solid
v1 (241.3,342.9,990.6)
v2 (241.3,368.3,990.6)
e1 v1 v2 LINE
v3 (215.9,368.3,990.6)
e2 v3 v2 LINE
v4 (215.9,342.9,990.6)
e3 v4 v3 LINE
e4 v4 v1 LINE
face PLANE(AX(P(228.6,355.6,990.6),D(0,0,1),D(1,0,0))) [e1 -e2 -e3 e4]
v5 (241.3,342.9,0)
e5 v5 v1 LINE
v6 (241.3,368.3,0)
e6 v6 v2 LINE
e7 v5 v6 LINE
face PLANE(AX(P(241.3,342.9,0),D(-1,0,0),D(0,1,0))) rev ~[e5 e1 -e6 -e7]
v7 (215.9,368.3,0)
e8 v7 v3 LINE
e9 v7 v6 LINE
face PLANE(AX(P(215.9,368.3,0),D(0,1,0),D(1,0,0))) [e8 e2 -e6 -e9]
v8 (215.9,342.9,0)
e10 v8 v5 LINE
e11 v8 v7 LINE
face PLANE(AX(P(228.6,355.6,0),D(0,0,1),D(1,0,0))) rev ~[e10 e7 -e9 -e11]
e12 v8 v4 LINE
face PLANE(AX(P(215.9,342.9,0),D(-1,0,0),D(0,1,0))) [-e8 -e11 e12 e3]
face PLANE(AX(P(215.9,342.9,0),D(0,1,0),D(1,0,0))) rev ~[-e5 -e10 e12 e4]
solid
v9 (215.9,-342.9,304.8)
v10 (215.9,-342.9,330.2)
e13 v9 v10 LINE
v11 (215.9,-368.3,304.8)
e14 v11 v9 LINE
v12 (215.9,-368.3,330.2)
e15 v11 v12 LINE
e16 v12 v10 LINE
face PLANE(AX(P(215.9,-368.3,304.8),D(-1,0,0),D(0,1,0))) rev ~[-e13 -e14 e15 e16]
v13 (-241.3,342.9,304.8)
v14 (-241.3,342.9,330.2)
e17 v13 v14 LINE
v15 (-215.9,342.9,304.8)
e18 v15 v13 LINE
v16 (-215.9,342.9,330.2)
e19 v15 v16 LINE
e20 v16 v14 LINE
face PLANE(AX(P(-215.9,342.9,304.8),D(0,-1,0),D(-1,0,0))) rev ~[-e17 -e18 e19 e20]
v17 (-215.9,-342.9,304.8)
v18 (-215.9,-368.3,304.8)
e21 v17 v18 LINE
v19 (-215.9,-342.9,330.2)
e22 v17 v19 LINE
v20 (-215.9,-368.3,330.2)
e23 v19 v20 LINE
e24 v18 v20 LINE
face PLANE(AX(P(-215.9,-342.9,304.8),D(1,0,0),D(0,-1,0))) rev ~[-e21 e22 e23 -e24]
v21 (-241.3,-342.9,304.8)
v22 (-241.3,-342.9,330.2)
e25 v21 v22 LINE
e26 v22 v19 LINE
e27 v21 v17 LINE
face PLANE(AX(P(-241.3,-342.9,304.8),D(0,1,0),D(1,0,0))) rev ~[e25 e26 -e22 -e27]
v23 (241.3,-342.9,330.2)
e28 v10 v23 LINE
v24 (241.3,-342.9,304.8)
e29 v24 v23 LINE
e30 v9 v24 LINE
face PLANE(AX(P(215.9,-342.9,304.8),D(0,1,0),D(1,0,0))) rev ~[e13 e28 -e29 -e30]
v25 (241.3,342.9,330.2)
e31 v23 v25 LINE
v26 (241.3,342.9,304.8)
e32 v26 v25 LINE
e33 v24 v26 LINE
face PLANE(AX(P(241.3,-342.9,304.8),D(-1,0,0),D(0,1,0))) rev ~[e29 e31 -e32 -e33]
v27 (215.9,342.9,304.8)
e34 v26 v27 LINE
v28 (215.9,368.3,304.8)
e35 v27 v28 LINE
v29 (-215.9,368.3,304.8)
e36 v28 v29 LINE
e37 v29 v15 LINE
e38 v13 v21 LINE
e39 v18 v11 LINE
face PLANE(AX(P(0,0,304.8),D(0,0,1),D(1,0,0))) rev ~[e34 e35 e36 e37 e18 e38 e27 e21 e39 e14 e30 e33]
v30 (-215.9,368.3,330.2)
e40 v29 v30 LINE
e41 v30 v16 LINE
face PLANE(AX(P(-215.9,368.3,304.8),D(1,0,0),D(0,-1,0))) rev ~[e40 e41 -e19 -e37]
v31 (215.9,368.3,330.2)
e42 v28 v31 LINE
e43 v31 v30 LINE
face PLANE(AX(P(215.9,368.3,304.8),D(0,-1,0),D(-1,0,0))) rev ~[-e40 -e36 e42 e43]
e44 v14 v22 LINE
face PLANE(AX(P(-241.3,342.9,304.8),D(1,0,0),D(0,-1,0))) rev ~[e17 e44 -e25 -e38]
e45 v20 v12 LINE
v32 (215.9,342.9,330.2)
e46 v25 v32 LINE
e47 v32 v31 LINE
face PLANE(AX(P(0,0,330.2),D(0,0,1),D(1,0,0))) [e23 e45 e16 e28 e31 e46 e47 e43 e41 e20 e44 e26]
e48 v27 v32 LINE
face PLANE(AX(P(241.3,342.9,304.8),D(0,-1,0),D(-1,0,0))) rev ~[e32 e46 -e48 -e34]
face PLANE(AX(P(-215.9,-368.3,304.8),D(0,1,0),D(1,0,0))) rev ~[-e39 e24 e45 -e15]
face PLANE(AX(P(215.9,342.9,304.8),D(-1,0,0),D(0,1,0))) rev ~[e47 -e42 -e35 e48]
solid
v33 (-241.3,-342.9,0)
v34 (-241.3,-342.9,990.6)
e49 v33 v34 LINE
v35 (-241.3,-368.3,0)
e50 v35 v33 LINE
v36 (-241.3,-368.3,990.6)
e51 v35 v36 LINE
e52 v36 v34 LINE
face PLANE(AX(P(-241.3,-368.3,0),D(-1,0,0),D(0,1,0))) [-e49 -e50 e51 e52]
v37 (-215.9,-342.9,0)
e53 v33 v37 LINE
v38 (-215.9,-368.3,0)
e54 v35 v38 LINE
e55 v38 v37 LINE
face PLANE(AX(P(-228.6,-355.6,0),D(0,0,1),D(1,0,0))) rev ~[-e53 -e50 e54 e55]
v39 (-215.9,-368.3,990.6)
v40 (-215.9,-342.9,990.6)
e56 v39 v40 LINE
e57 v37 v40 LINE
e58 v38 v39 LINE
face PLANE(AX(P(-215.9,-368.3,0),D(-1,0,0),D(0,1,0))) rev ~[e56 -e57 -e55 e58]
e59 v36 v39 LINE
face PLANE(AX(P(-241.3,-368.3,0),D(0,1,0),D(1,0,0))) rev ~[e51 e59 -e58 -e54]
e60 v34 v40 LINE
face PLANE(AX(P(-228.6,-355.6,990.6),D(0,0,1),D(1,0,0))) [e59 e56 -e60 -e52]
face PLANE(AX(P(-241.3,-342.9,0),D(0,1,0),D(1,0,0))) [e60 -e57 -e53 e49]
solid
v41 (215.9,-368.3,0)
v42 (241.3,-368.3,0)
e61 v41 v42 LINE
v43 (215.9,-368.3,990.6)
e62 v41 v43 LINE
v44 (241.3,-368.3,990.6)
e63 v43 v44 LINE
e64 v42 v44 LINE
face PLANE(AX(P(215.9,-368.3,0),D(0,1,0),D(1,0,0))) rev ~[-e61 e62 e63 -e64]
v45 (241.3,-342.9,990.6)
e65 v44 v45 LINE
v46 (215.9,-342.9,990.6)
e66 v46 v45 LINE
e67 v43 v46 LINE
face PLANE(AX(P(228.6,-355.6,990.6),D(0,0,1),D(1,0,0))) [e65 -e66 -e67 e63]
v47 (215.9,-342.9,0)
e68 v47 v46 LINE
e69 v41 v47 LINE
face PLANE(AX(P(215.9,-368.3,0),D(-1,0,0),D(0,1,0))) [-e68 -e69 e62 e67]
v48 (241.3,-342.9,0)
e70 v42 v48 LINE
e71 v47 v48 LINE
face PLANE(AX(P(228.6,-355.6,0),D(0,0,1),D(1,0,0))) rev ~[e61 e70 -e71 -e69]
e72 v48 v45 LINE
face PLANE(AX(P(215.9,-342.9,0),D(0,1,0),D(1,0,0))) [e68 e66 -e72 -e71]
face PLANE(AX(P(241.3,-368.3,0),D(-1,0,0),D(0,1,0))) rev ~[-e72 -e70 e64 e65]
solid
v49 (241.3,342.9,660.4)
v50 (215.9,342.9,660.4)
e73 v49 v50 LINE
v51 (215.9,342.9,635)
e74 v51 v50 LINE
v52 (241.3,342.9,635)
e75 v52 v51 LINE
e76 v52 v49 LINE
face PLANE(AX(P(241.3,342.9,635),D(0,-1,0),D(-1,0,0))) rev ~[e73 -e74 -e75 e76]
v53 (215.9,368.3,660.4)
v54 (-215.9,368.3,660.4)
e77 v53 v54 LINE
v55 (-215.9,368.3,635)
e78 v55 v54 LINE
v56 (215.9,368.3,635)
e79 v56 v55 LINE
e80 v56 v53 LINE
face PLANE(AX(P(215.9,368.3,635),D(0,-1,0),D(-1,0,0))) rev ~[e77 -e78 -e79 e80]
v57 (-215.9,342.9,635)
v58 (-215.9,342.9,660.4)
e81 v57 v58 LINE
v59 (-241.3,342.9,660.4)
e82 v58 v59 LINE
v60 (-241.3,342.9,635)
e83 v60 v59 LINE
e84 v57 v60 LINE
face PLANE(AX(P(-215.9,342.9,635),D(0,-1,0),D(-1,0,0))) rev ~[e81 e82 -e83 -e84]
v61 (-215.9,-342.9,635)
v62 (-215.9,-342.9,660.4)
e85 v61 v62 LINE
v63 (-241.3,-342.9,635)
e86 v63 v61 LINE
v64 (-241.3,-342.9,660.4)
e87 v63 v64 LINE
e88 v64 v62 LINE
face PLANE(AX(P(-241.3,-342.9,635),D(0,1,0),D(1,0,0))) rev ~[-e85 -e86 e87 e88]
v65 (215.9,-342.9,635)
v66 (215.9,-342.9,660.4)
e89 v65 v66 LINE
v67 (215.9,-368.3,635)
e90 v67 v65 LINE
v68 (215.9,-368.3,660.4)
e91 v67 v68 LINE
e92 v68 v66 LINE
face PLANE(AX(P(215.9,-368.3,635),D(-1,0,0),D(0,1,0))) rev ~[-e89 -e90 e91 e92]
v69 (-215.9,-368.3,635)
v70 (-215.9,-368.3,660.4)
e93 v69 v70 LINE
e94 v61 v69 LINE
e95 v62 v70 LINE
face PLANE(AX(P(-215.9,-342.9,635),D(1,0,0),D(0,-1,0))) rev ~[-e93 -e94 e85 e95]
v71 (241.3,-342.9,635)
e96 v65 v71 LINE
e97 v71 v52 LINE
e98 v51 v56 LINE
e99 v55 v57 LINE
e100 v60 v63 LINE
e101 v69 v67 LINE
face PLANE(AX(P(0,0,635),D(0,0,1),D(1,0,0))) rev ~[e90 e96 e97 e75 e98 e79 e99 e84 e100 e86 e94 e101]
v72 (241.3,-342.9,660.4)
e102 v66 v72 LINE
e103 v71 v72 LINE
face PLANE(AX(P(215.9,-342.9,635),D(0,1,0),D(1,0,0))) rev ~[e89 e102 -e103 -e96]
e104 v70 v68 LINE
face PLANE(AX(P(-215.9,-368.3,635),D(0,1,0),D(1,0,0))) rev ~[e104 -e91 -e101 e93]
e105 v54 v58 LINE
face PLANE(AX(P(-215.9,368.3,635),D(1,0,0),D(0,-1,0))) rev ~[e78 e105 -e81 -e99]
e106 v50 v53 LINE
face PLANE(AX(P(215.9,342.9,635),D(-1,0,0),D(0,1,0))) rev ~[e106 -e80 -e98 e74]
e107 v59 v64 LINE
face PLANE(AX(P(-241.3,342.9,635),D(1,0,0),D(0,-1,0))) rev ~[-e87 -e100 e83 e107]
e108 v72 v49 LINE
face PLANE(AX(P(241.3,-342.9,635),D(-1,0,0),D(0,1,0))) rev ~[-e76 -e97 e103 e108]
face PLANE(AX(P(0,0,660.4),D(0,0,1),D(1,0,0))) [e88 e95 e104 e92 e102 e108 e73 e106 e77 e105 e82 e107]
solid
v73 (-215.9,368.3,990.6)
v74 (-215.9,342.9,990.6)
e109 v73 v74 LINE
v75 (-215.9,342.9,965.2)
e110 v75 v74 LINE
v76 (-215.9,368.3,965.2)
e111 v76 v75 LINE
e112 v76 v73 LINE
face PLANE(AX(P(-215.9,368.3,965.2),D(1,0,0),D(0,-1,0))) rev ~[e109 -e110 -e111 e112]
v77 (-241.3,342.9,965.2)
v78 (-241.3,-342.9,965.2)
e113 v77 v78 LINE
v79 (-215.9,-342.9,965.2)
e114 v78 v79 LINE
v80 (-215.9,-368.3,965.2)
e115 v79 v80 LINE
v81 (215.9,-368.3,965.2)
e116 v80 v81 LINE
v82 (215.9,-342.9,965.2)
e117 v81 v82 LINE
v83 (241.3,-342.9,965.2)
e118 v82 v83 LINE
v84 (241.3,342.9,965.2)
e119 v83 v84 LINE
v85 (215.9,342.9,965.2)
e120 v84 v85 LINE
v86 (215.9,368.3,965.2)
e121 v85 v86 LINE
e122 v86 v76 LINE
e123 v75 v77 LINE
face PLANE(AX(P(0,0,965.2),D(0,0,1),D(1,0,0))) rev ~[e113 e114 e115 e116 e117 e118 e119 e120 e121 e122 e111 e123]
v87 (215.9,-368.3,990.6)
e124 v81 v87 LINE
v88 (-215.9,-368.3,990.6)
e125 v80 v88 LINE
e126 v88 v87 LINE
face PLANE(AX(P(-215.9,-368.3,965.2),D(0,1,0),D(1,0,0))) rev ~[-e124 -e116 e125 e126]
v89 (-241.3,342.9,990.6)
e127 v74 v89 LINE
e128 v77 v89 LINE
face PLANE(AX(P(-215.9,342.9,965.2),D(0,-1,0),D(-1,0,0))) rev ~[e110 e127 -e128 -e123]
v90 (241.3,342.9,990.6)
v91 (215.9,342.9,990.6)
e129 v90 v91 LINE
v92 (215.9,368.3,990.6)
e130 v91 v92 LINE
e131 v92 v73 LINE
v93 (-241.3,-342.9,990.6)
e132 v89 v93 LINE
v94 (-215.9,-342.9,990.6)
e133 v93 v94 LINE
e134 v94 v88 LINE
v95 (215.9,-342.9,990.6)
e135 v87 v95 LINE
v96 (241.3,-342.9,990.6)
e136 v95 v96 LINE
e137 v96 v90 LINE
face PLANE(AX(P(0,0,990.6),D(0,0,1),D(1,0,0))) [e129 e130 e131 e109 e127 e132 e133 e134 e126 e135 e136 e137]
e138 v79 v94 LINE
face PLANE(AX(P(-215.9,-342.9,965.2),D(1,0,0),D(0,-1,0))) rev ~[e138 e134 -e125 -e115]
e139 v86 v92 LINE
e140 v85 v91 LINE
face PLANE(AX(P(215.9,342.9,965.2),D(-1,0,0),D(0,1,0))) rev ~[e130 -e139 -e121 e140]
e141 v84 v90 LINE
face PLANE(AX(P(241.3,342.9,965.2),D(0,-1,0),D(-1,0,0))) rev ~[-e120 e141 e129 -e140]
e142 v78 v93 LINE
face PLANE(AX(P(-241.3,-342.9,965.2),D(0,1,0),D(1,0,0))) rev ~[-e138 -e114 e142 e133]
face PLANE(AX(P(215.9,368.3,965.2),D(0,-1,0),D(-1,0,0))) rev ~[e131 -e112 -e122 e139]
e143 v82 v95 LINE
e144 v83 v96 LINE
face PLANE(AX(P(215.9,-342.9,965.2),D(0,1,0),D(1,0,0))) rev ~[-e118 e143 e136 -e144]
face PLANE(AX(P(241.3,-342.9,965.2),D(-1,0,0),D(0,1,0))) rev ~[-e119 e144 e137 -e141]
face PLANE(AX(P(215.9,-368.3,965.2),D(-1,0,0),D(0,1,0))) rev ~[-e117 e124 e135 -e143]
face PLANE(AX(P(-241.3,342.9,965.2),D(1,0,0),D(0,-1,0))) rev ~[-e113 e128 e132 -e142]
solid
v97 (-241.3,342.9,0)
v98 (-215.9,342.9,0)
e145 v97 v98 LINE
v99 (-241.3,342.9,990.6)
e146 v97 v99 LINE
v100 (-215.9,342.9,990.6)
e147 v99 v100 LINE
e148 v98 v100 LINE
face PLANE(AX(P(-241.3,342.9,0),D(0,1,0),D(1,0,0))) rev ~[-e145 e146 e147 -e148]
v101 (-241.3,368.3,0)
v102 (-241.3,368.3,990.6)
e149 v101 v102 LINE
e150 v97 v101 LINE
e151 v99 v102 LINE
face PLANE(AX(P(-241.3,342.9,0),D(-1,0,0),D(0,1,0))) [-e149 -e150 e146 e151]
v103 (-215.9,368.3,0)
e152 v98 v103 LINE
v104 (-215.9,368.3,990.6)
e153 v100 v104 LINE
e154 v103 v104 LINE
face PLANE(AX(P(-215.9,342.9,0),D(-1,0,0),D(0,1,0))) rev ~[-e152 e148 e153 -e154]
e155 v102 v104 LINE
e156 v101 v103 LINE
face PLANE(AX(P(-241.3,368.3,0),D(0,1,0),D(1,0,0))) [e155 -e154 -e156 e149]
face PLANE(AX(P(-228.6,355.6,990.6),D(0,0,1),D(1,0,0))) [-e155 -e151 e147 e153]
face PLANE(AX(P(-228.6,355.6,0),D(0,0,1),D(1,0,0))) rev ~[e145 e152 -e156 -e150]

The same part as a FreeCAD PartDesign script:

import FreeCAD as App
import Part
import Sketcher
Q = App.Units.Quantity


def add_polygon(sketch, points):
    """Adds a closed chain of lines whose ends are joined by coincident constraints."""
    first, n = sketch.GeometryCount, len(points)
    for a, b in zip(points, points[1:] + points[:1]):
        sketch.addGeometry(Part.LineSegment(App.Vector(*a, 0), App.Vector(*b, 0)), False)
    for i in range(n):
        sketch.addConstraint(Sketcher.Constraint("Coincident", first + i, 2, first + (i + 1) % n, 1))

doc = App.newDocument("Part")
params = doc.addObject("Spreadsheet::Sheet", "Params")
for row, (alias, value) in enumerate([
    ("sketch1_width", "1 in"),
    ("pad1_length", "39 in"),
    ("sketch2_width", "1 in"),
    ("pad2_length", "39 in"),
    ("sketch3_width", "1 in"),
    ("pad3_length", "39 in"),
    ("sketch4_width", "1 in"),
    ("pad4_length", "39 in"),
    ("sketch5_width", "1 in"),
    ("sketch5_width2", "17 in"),
    ("sketch5_height", "27 in"),
    ("pad5_length", "1 in"),
    ("sketch6_width", "17 in"),
    ("sketch6_width2", "1 in"),
    ("sketch6_height", "27 in"),
    ("pad6_length", "1 in"),
    ("sketch7_width", "1 in"),
    ("sketch7_width2", "17 in"),
    ("sketch7_height", "27 in"),
    ("pad7_length", "1 in"),
], start=1):
    params.set(f"A{row}", alias)
    params.set(f"B{row}", "=" + value)
    params.setAlias(f"B{row}", alias)

body = doc.addObject("PartDesign::Body", "Body")

sketch1 = doc.addObject("Sketcher::SketchObject", "Sketch")
body.addObject(sketch1)
sketch1.AttachmentSupport = (doc.XY_Plane, [""])
sketch1.MapMode = "FlatFace"
add_polygon(sketch1, [(-241.3, 368.3), (-241.3, 342.9), (-215.9, 342.9), (-215.9, 368.3)])
sketch1.addConstraint(Sketcher.Constraint("Vertical", 0))
sketch1.addConstraint(Sketcher.Constraint("Horizontal", 1))
sketch1.addConstraint(Sketcher.Constraint("Vertical", 2))
sketch1.addConstraint(Sketcher.Constraint("Horizontal", 3))
sketch1.addConstraint(Sketcher.Constraint("Equal", 3, 0))
sketch1.addConstraint(Sketcher.Constraint("DistanceX", 1, 1, 1, 2, Q("1 in")))
sketch1.addConstraint(Sketcher.Constraint("DistanceX", 0, 2, -1, 1, Q("9.5 in")))
sketch1.addConstraint(Sketcher.Constraint("DistanceY", -1, 1, 0, 2, Q("13.5 in")))
sketch1.setExpression("Constraints[9]", "Params.sketch1_width")
pad1 = doc.addObject("PartDesign::Pad", "Pad")
body.addObject(pad1)
pad1.Profile = sketch1
pad1.setExpression("Length", "Params.pad1_length")
body2 = doc.addObject("PartDesign::Body", "Body001")

sketch2 = doc.addObject("Sketcher::SketchObject", "Sketch001")
body2.addObject(sketch2)
sketch2.AttachmentSupport = (doc.getObject("XY_Plane001"), [""])
sketch2.MapMode = "FlatFace"
add_polygon(sketch2, [(215.9, 368.3), (215.9, 342.9), (241.3, 342.9), (241.3, 368.3)])
sketch2.addConstraint(Sketcher.Constraint("Vertical", 0))
sketch2.addConstraint(Sketcher.Constraint("Horizontal", 1))
sketch2.addConstraint(Sketcher.Constraint("Vertical", 2))
sketch2.addConstraint(Sketcher.Constraint("Horizontal", 3))
sketch2.addConstraint(Sketcher.Constraint("Equal", 3, 0))
sketch2.addConstraint(Sketcher.Constraint("DistanceX", 1, 1, 1, 2, Q("1 in")))
sketch2.addConstraint(Sketcher.Constraint("DistanceX", -1, 1, 0, 2, Q("8.5 in")))
sketch2.addConstraint(Sketcher.Constraint("DistanceY", -1, 1, 0, 2, Q("13.5 in")))
sketch2.setExpression("Constraints[9]", "Params.sketch2_width")
pad2 = doc.addObject("PartDesign::Pad", "Pad001")
body2.addObject(pad2)
pad2.Profile = sketch2
pad2.setExpression("Length", "Params.pad2_length")
body3 = doc.addObject("PartDesign::Body", "Body002")

sketch3 = doc.addObject("Sketcher::SketchObject", "Sketch002")
body3.addObject(sketch3)
sketch3.AttachmentSupport = (doc.getObject("XY_Plane002"), [""])
sketch3.MapMode = "FlatFace"
add_polygon(sketch3, [(-241.3, -342.9), (-241.3, -368.3), (-215.9, -368.3), (-215.9, -342.9)])
sketch3.addConstraint(Sketcher.Constraint("Vertical", 0))
sketch3.addConstraint(Sketcher.Constraint("Horizontal", 1))
sketch3.addConstraint(Sketcher.Constraint("Vertical", 2))
sketch3.addConstraint(Sketcher.Constraint("Horizontal", 3))
sketch3.addConstraint(Sketcher.Constraint("Equal", 3, 0))
sketch3.addConstraint(Sketcher.Constraint("DistanceX", 1, 1, 1, 2, Q("1 in")))
sketch3.addConstraint(Sketcher.Constraint("DistanceX", 0, 2, -1, 1, Q("9.5 in")))
sketch3.addConstraint(Sketcher.Constraint("DistanceY", 0, 2, -1, 1, Q("14.5 in")))
sketch3.setExpression("Constraints[9]", "Params.sketch3_width")
pad3 = doc.addObject("PartDesign::Pad", "Pad002")
body3.addObject(pad3)
pad3.Profile = sketch3
pad3.setExpression("Length", "Params.pad3_length")
body4 = doc.addObject("PartDesign::Body", "Body003")

sketch4 = doc.addObject("Sketcher::SketchObject", "Sketch003")
body4.addObject(sketch4)
sketch4.AttachmentSupport = (doc.getObject("XY_Plane003"), [""])
sketch4.MapMode = "FlatFace"
add_polygon(sketch4, [(215.9, -342.9), (215.9, -368.3), (241.3, -368.3), (241.3, -342.9)])
sketch4.addConstraint(Sketcher.Constraint("Vertical", 0))
sketch4.addConstraint(Sketcher.Constraint("Horizontal", 1))
sketch4.addConstraint(Sketcher.Constraint("Vertical", 2))
sketch4.addConstraint(Sketcher.Constraint("Horizontal", 3))
sketch4.addConstraint(Sketcher.Constraint("Equal", 3, 0))
sketch4.addConstraint(Sketcher.Constraint("DistanceX", 1, 1, 1, 2, Q("1 in")))
sketch4.addConstraint(Sketcher.Constraint("DistanceX", -1, 1, 0, 2, Q("8.5 in")))
sketch4.addConstraint(Sketcher.Constraint("DistanceY", 0, 2, -1, 1, Q("14.5 in")))
sketch4.setExpression("Constraints[9]", "Params.sketch4_width")
pad4 = doc.addObject("PartDesign::Pad", "Pad003")
body4.addObject(pad4)
pad4.Profile = sketch4
pad4.setExpression("Length", "Params.pad4_length")
body5 = doc.addObject("PartDesign::Body", "Body004")

sketch5 = doc.addObject("Sketcher::SketchObject", "Sketch004")
body5.addObject(sketch5)
sketch5.AttachmentSupport = (doc.getObject("XY_Plane004"), [""])
sketch5.MapMode = "FlatFace"
sketch5.AttachmentOffset = App.Placement(App.Vector(0, 0, 12 * 25.4), App.Rotation())
add_polygon(sketch5, [(215.9, -342.9), (241.3, -342.9), (241.3, 342.9), (215.9, 342.9), (215.9, 368.3), (-215.9, 368.3), (-215.9, 342.9), (-241.3, 342.9), (-241.3, -342.9), (-215.9, -342.9), (-215.9, -368.3), (215.9, -368.3)])
sketch5.addConstraint(Sketcher.Constraint("Horizontal", 0))
sketch5.addConstraint(Sketcher.Constraint("Vertical", 1))
sketch5.addConstraint(Sketcher.Constraint("Horizontal", 2))
sketch5.addConstraint(Sketcher.Constraint("Vertical", 3))
sketch5.addConstraint(Sketcher.Constraint("Horizontal", 4))
sketch5.addConstraint(Sketcher.Constraint("Vertical", 5))
sketch5.addConstraint(Sketcher.Constraint("Horizontal", 6))
sketch5.addConstraint(Sketcher.Constraint("Vertical", 7))
sketch5.addConstraint(Sketcher.Constraint("Horizontal", 8))
sketch5.addConstraint(Sketcher.Constraint("Vertical", 9))
sketch5.addConstraint(Sketcher.Constraint("Horizontal", 10))
sketch5.addConstraint(Sketcher.Constraint("Vertical", 11))
sketch5.addConstraint(Sketcher.Constraint("Symmetric", 0, 2, 6, 2, -1, 1))
sketch5.addConstraint(Sketcher.Constraint("Symmetric", 2, 2, 8, 2, -1, 1))
sketch5.addConstraint(Sketcher.Constraint("Symmetric", 4, 2, 10, 2, -1, 1))
sketch5.addConstraint(Sketcher.Constraint("Symmetric", 2, 2, 5, 2, -2))
sketch5.addConstraint(Sketcher.Constraint("Equal", 8, 3))
sketch5.addConstraint(Sketcher.Constraint("DistanceX", 0, 1, 0, 2, Q("1 in")))
sketch5.addConstraint(Sketcher.Constraint("DistanceX", 4, 2, 4, 1, Q("17 in")))
sketch5.addConstraint(Sketcher.Constraint("DistanceY", 1, 1, 1, 2, Q("27 in")))
sketch5.setExpression("Constraints[29]", "Params.sketch5_width")
sketch5.setExpression("Constraints[30]", "Params.sketch5_width2")
sketch5.setExpression("Constraints[31]", "Params.sketch5_height")
pad5 = doc.addObject("PartDesign::Pad", "Pad004")
body5.addObject(pad5)
pad5.Profile = sketch5
pad5.setExpression("Length", "Params.pad5_length")
body6 = doc.addObject("PartDesign::Body", "Body005")

sketch6 = doc.addObject("Sketcher::SketchObject", "Sketch005")
body6.addObject(sketch6)
sketch6.AttachmentSupport = (doc.getObject("XY_Plane005"), [""])
sketch6.MapMode = "FlatFace"
sketch6.AttachmentOffset = App.Placement(App.Vector(0, 0, 25 * 25.4), App.Rotation())
add_polygon(sketch6, [(-215.9, -368.3), (215.9, -368.3), (215.9, -342.9), (241.3, -342.9), (241.3, 342.9), (215.9, 342.9), (215.9, 368.3), (-215.9, 368.3), (-215.9, 342.9), (-241.3, 342.9), (-241.3, -342.9), (-215.9, -342.9)])
sketch6.addConstraint(Sketcher.Constraint("Horizontal", 0))
sketch6.addConstraint(Sketcher.Constraint("Vertical", 1))
sketch6.addConstraint(Sketcher.Constraint("Horizontal", 2))
sketch6.addConstraint(Sketcher.Constraint("Vertical", 3))
sketch6.addConstraint(Sketcher.Constraint("Horizontal", 4))
sketch6.addConstraint(Sketcher.Constraint("Vertical", 5))
sketch6.addConstraint(Sketcher.Constraint("Horizontal", 6))
sketch6.addConstraint(Sketcher.Constraint("Vertical", 7))
sketch6.addConstraint(Sketcher.Constraint("Horizontal", 8))
sketch6.addConstraint(Sketcher.Constraint("Vertical", 9))
sketch6.addConstraint(Sketcher.Constraint("Horizontal", 10))
sketch6.addConstraint(Sketcher.Constraint("Vertical", 11))
sketch6.addConstraint(Sketcher.Constraint("Symmetric", 0, 2, 6, 2, -1, 1))
sketch6.addConstraint(Sketcher.Constraint("Symmetric", 2, 2, 8, 2, -1, 1))
sketch6.addConstraint(Sketcher.Constraint("Symmetric", 4, 2, 10, 2, -1, 1))
sketch6.addConstraint(Sketcher.Constraint("Symmetric", 4, 2, 7, 2, -2))
sketch6.addConstraint(Sketcher.Constraint("Equal", 10, 1))
sketch6.addConstraint(Sketcher.Constraint("DistanceX", 0, 1, 0, 2, Q("17 in")))
sketch6.addConstraint(Sketcher.Constraint("DistanceX", 2, 1, 2, 2, Q("1 in")))
sketch6.addConstraint(Sketcher.Constraint("DistanceY", 3, 1, 3, 2, Q("27 in")))
sketch6.setExpression("Constraints[29]", "Params.sketch6_width")
sketch6.setExpression("Constraints[30]", "Params.sketch6_width2")
sketch6.setExpression("Constraints[31]", "Params.sketch6_height")
pad6 = doc.addObject("PartDesign::Pad", "Pad005")
body6.addObject(pad6)
pad6.Profile = sketch6
pad6.setExpression("Length", "Params.pad6_length")
body7 = doc.addObject("PartDesign::Body", "Body006")

sketch7 = doc.addObject("Sketcher::SketchObject", "Sketch006")
body7.addObject(sketch7)
sketch7.AttachmentSupport = (doc.getObject("XY_Plane006"), [""])
sketch7.MapMode = "FlatFace"
sketch7.AttachmentOffset = App.Placement(App.Vector(0, 0, 38 * 25.4), App.Rotation())
add_polygon(sketch7, [(-241.3, -342.9), (-215.9, -342.9), (-215.9, -368.3), (215.9, -368.3), (215.9, -342.9), (241.3, -342.9), (241.3, 342.9), (215.9, 342.9), (215.9, 368.3), (-215.9, 368.3), (-215.9, 342.9), (-241.3, 342.9)])
sketch7.addConstraint(Sketcher.Constraint("Horizontal", 0))
sketch7.addConstraint(Sketcher.Constraint("Vertical", 1))
sketch7.addConstraint(Sketcher.Constraint("Horizontal", 2))
sketch7.addConstraint(Sketcher.Constraint("Vertical", 3))
sketch7.addConstraint(Sketcher.Constraint("Horizontal", 4))
sketch7.addConstraint(Sketcher.Constraint("Vertical", 5))
sketch7.addConstraint(Sketcher.Constraint("Horizontal", 6))
sketch7.addConstraint(Sketcher.Constraint("Vertical", 7))
sketch7.addConstraint(Sketcher.Constraint("Horizontal", 8))
sketch7.addConstraint(Sketcher.Constraint("Vertical", 9))
sketch7.addConstraint(Sketcher.Constraint("Horizontal", 10))
sketch7.addConstraint(Sketcher.Constraint("Vertical", 11))
sketch7.addConstraint(Sketcher.Constraint("Symmetric", 0, 2, 6, 2, -1, 1))
sketch7.addConstraint(Sketcher.Constraint("Symmetric", 2, 2, 8, 2, -1, 1))
sketch7.addConstraint(Sketcher.Constraint("Symmetric", 4, 2, 10, 2, -1, 1))
sketch7.addConstraint(Sketcher.Constraint("Symmetric", 0, 2, 3, 2, -2))
sketch7.addConstraint(Sketcher.Constraint("Equal", 10, 1))
sketch7.addConstraint(Sketcher.Constraint("DistanceX", 0, 1, 0, 2, Q("1 in")))
sketch7.addConstraint(Sketcher.Constraint("DistanceX", 2, 1, 2, 2, Q("17 in")))
sketch7.addConstraint(Sketcher.Constraint("DistanceY", 5, 1, 5, 2, Q("27 in")))
sketch7.setExpression("Constraints[29]", "Params.sketch7_width")
sketch7.setExpression("Constraints[30]", "Params.sketch7_width2")
sketch7.setExpression("Constraints[31]", "Params.sketch7_height")
pad7 = doc.addObject("PartDesign::Pad", "Pad006")
body7.addObject(pad7)
pad7.Profile = sketch7
pad7.setExpression("Length", "Params.pad7_length")

doc.recompute()
